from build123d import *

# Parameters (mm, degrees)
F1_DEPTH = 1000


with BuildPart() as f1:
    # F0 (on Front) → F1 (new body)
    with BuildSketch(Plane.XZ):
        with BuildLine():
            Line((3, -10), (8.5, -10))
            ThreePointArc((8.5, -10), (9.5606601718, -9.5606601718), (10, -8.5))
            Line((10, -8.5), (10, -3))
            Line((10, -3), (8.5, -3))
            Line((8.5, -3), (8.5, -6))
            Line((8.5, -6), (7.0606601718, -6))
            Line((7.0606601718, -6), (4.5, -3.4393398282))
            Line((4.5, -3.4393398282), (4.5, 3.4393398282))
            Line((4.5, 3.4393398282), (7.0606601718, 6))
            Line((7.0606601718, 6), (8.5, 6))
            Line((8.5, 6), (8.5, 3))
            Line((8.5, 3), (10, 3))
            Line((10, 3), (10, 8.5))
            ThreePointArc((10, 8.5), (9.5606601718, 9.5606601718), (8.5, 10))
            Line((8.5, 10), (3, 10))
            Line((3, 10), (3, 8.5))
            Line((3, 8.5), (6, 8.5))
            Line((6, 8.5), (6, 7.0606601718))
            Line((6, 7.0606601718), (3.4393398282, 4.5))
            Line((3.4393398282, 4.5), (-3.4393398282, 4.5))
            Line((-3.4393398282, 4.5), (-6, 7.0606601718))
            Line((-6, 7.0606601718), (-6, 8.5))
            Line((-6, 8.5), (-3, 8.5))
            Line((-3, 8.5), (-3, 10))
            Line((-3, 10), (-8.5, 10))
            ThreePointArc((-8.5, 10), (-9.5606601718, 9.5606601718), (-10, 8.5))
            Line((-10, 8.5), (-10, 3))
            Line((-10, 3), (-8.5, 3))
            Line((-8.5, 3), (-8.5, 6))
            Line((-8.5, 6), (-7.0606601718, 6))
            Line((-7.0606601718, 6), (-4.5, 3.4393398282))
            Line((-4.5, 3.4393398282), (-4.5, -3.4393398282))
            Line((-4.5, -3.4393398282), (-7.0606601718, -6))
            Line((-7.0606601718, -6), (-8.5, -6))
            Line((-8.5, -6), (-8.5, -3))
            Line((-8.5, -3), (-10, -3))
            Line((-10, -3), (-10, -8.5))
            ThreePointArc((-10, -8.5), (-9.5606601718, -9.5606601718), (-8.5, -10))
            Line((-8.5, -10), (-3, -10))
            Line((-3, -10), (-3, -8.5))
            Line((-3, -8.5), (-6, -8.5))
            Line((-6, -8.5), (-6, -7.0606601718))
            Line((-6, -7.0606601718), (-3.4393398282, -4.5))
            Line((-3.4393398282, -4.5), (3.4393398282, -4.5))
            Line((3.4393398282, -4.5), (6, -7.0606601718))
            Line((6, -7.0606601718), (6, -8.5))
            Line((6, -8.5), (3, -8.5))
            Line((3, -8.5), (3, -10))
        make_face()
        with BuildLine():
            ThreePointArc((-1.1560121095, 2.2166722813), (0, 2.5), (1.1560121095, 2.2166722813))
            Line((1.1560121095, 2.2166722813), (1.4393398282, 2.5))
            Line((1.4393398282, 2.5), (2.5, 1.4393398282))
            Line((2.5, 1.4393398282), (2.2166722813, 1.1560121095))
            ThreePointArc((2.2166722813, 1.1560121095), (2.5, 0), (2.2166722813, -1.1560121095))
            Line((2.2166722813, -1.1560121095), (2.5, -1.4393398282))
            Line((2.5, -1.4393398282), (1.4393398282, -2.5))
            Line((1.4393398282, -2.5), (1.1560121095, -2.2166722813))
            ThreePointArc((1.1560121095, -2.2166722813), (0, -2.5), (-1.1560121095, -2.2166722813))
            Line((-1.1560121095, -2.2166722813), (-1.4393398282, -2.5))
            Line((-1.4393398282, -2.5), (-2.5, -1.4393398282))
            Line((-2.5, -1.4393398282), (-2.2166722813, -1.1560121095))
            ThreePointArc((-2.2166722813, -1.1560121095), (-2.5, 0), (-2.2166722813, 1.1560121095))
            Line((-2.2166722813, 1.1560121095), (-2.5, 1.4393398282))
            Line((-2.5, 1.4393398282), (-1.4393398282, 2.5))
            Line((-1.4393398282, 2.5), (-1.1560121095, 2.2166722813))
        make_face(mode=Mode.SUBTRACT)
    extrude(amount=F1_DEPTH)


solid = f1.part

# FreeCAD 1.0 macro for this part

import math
import FreeCAD as App
import Part
import Sketcher

V = App.Vector
Q = App.Units.Quantity

doc = App.newDocument("Part")
body = doc.addObject("PartDesign::Body", "Body")

# Sketch on XZ plane
sketch1 = body.newObject("Sketcher::SketchObject", "Sketch")
sketch1.AttachmentSupport = (doc.getObject("XZ_Plane"), [""])
sketch1.MapMode = "FlatFace"
sketch1.addGeometry([
    Part.LineSegment(V(3, -10, 0), V(8.5, -10, 0)),  # 0
    Part.ArcOfCircle(Part.Circle(V(8.5, -8.5, 0), V(0, 0, 1), 1.5), math.radians(-90), math.radians(0)),  # 1
    Part.LineSegment(V(10, -8.5, 0), V(10, -3, 0)),  # 2
    Part.LineSegment(V(10, -3, 0), V(8.5, -3, 0)),  # 3
    Part.LineSegment(V(8.5, -3, 0), V(8.5, -6, 0)),  # 4
    Part.LineSegment(V(8.5, -6, 0), V(7.06, -6, 0)),  # 5
    Part.LineSegment(V(7.06, -6, 0), V(4.5, -3.44, 0)),  # 6
    Part.LineSegment(V(4.5, -3.44, 0), V(4.5, 3.44, 0)),  # 7
    Part.LineSegment(V(4.5, 3.44, 0), V(7.06, 6, 0)),  # 8
    Part.LineSegment(V(7.06, 6, 0), V(8.5, 6, 0)),  # 9
    Part.LineSegment(V(8.5, 6, 0), V(8.5, 3, 0)),  # 10
    Part.LineSegment(V(8.5, 3, 0), V(10, 3, 0)),  # 11
    Part.LineSegment(V(10, 3, 0), V(10, 8.5, 0)),  # 12
    Part.ArcOfCircle(Part.Circle(V(8.5, 8.5, 0), V(0, 0, 1), 1.5), math.radians(0), math.radians(90)),  # 13
    Part.LineSegment(V(8.5, 10, 0), V(3, 10, 0)),  # 14
    Part.LineSegment(V(3, 10, 0), V(3, 8.5, 0)),  # 15
    Part.LineSegment(V(3, 8.5, 0), V(6, 8.5, 0)),  # 16
    Part.LineSegment(V(6, 8.5, 0), V(6, 7.06, 0)),  # 17
    Part.LineSegment(V(6, 7.06, 0), V(3.44, 4.5, 0)),  # 18
    Part.LineSegment(V(3.44, 4.5, 0), V(-3.44, 4.5, 0)),  # 19
    Part.LineSegment(V(-3.44, 4.5, 0), V(-6, 7.06, 0)),  # 20
    Part.LineSegment(V(-6, 7.06, 0), V(-6, 8.5, 0)),  # 21
    Part.LineSegment(V(-6, 8.5, 0), V(-3, 8.5, 0)),  # 22
    Part.LineSegment(V(-3, 8.5, 0), V(-3, 10, 0)),  # 23
    Part.LineSegment(V(-3, 10, 0), V(-8.5, 10, 0)),  # 24
    Part.ArcOfCircle(Part.Circle(V(-8.5, 8.5, 0), V(0, 0, 1), 1.5), math.radians(90), math.radians(180)),  # 25
    Part.LineSegment(V(-10, 8.5, 0), V(-10, 3, 0)),  # 26
    Part.LineSegment(V(-10, 3, 0), V(-8.5, 3, 0)),  # 27
    Part.LineSegment(V(-8.5, 3, 0), V(-8.5, 6, 0)),  # 28
    Part.LineSegment(V(-8.5, 6, 0), V(-7.06, 6, 0)),  # 29
    Part.LineSegment(V(-7.06, 6, 0), V(-4.5, 3.44, 0)),  # 30
    Part.LineSegment(V(-4.5, 3.44, 0), V(-4.5, -3.44, 0)),  # 31
    Part.LineSegment(V(-4.5, -3.44, 0), V(-7.06, -6, 0)),  # 32
    Part.LineSegment(V(-7.06, -6, 0), V(-8.5, -6, 0)),  # 33
    Part.LineSegment(V(-8.5, -6, 0), V(-8.5, -3, 0)),  # 34
    Part.LineSegment(V(-8.5, -3, 0), V(-10, -3, 0)),  # 35
    Part.LineSegment(V(-10, -3, 0), V(-10, -8.5, 0)),  # 36
    Part.ArcOfCircle(Part.Circle(V(-8.5, -8.5, 0), V(0, 0, 1), 1.5), math.radians(180), math.radians(270)),  # 37
    Part.LineSegment(V(-8.5, -10, 0), V(-3, -10, 0)),  # 38
    Part.LineSegment(V(-3, -10, 0), V(-3, -8.5, 0)),  # 39
    Part.LineSegment(V(-3, -8.5, 0), V(-6, -8.5, 0)),  # 40
    Part.LineSegment(V(-6, -8.5, 0), V(-6, -7.06, 0)),  # 41
    Part.LineSegment(V(-6, -7.06, 0), V(-3.44, -4.5, 0)),  # 42
    Part.LineSegment(V(-3.44, -4.5, 0), V(3.44, -4.5, 0)),  # 43
    Part.LineSegment(V(3.44, -4.5, 0), V(6, -7.06, 0)),  # 44
    Part.LineSegment(V(6, -7.06, 0), V(6, -8.5, 0)),  # 45
    Part.LineSegment(V(6, -8.5, 0), V(3, -8.5, 0)),  # 46
    Part.LineSegment(V(3, -8.5, 0), V(3, -10, 0)),  # 47
    Part.LineSegment(V(-1.44, 2.5, 0), V(-1.16, 2.22, 0)),  # 48
    Part.ArcOfCircle(Part.Circle(V(0, 0, 0), V(0, 0, 1), 2.5), math.radians(62), math.radians(118)),  # 49
    Part.LineSegment(V(1.16, 2.22, 0), V(1.44, 2.5, 0)),  # 50
    Part.LineSegment(V(1.44, 2.5, 0), V(2.5, 1.44, 0)),  # 51
    Part.LineSegment(V(2.5, 1.44, 0), V(2.22, 1.16, 0)),  # 52
    Part.ArcOfCircle(Part.Circle(V(0, 0, 0), V(0, 0, 1), 2.5), math.radians(-28), math.radians(28)),  # 53
    Part.LineSegment(V(2.22, -1.16, 0), V(2.5, -1.44, 0)),  # 54
    Part.LineSegment(V(2.5, -1.44, 0), V(1.44, -2.5, 0)),  # 55
    Part.LineSegment(V(1.44, -2.5, 0), V(1.16, -2.22, 0)),  # 56
    Part.ArcOfCircle(Part.Circle(V(0, 0, 0), V(0, 0, 1), 2.5), math.radians(-118), math.radians(-62)),  # 57
    Part.LineSegment(V(-1.16, -2.22, 0), V(-1.44, -2.5, 0)),  # 58
    Part.LineSegment(V(-1.44, -2.5, 0), V(-2.5, -1.44, 0)),  # 59
    Part.LineSegment(V(-2.5, -1.44, 0), V(-2.22, -1.16, 0)),  # 60
    Part.ArcOfCircle(Part.Circle(V(0, 0, 0), V(0, 0, 1), 2.5), math.radians(152), math.radians(208)),  # 61
    Part.LineSegment(V(-2.22, 1.16, 0), V(-2.5, 1.44, 0)),  # 62
    Part.LineSegment(V(-2.5, 1.44, 0), V(-1.44, 2.5, 0)),  # 63
], False)
sketch1.addConstraint([
    Sketcher.Constraint("Tangent", 0, 2, 1, 1),
    Sketcher.Constraint("Tangent", 1, 2, 2, 1),
    Sketcher.Constraint("Coincident", 2, 2, 3, 1),
    Sketcher.Constraint("Coincident", 3, 2, 4, 1),
    Sketcher.Constraint("Coincident", 4, 2, 5, 1),
    Sketcher.Constraint("Coincident", 5, 2, 6, 1),
    Sketcher.Constraint("Coincident", 6, 2, 7, 1),
    Sketcher.Constraint("Coincident", 7, 2, 8, 1),
    Sketcher.Constraint("Coincident", 8, 2, 9, 1),
    Sketcher.Constraint("Coincident", 9, 2, 10, 1),
    Sketcher.Constraint("Coincident", 10, 2, 11, 1),
    Sketcher.Constraint("Coincident", 11, 2, 12, 1),
    Sketcher.Constraint("Tangent", 12, 2, 13, 1),
    Sketcher.Constraint("Tangent", 13, 2, 14, 1),
    Sketcher.Constraint("Coincident", 14, 2, 15, 1),
    Sketcher.Constraint("Coincident", 15, 2, 16, 1),
    Sketcher.Constraint("Coincident", 16, 2, 17, 1),
    Sketcher.Constraint("Coincident", 17, 2, 18, 1),
    Sketcher.Constraint("Coincident", 18, 2, 19, 1),
    Sketcher.Constraint("Coincident", 19, 2, 20, 1),
    Sketcher.Constraint("Coincident", 20, 2, 21, 1),
    Sketcher.Constraint("Coincident", 21, 2, 22, 1),
    Sketcher.Constraint("Coincident", 22, 2, 23, 1),
    Sketcher.Constraint("Coincident", 23, 2, 24, 1),
    Sketcher.Constraint("Tangent", 24, 2, 25, 1),
    Sketcher.Constraint("Tangent", 25, 2, 26, 1),
    Sketcher.Constraint("Coincident", 26, 2, 27, 1),
    Sketcher.Constraint("Coincident", 27, 2, 28, 1),
    Sketcher.Constraint("Coincident", 28, 2, 29, 1),
    Sketcher.Constraint("Coincident", 29, 2, 30, 1),
    Sketcher.Constraint("Coincident", 30, 2, 31, 1),
    Sketcher.Constraint("Coincident", 31, 2, 32, 1),
    Sketcher.Constraint("Coincident", 32, 2, 33, 1),
    Sketcher.Constraint("Coincident", 33, 2, 34, 1),
    Sketcher.Constraint("Coincident", 34, 2, 35, 1),
    Sketcher.Constraint("Coincident", 35, 2, 36, 1),
    Sketcher.Constraint("Tangent", 36, 2, 37, 1),
    Sketcher.Constraint("Tangent", 37, 2, 38, 1),
    Sketcher.Constraint("Coincident", 38, 2, 39, 1),
    Sketcher.Constraint("Coincident", 39, 2, 40, 1),
    Sketcher.Constraint("Coincident", 40, 2, 41, 1),
    Sketcher.Constraint("Coincident", 41, 2, 42, 1),
    Sketcher.Constraint("Coincident", 42, 2, 43, 1),
    Sketcher.Constraint("Coincident", 43, 2, 44, 1),
    Sketcher.Constraint("Coincident", 44, 2, 45, 1),
    Sketcher.Constraint("Coincident", 45, 2, 46, 1),
    Sketcher.Constraint("Coincident", 46, 2, 47, 1),
    Sketcher.Constraint("Coincident", 47, 2, 0, 1),
    Sketcher.Constraint("Coincident", 48, 2, 49, 2),
    Sketcher.Constraint("Coincident", 49, 1, 50, 1),
    Sketcher.Constraint("Coincident", 50, 2, 51, 1),
    Sketcher.Constraint("Coincident", 51, 2, 52, 1),
    Sketcher.Constraint("Coincident", 52, 2, 53, 2),
    Sketcher.Constraint("Coincident", 53, 1, 54, 1),
    Sketcher.Constraint("Coincident", 54, 2, 55, 1),
    Sketcher.Constraint("Coincident", 55, 2, 56, 1),
    Sketcher.Constraint("Coincident", 56, 2, 57, 2),
    Sketcher.Constraint("Coincident", 57, 1, 58, 1),
    Sketcher.Constraint("Coincident", 58, 2, 59, 1),
    Sketcher.Constraint("Coincident", 59, 2, 60, 1),
    Sketcher.Constraint("Coincident", 60, 2, 61, 2),
    Sketcher.Constraint("Coincident", 61, 1, 62, 1),
    Sketcher.Constraint("Coincident", 62, 2, 63, 1),
    Sketcher.Constraint("Coincident", 63, 2, 48, 1),
    Sketcher.Constraint("Horizontal", 0),
    Sketcher.Constraint("Vertical", 2),
    Sketcher.Constraint("Horizontal", 3),
    Sketcher.Constraint("Vertical", 4),
    Sketcher.Constraint("Horizontal", 5),
    Sketcher.Constraint("Vertical", 7),
    Sketcher.Constraint("Horizontal", 9),
    Sketcher.Constraint("Vertical", 10),
    Sketcher.Constraint("Horizontal", 11),
    Sketcher.Constraint("Vertical", 12),
    Sketcher.Constraint("Horizontal", 14),
    Sketcher.Constraint("Vertical", 15),
    Sketcher.Constraint("Horizontal", 16),
    Sketcher.Constraint("Vertical", 17),
    Sketcher.Constraint("Horizontal", 19),
    Sketcher.Constraint("Vertical", 21),
    Sketcher.Constraint("Horizontal", 22),
    Sketcher.Constraint("Vertical", 23),
    Sketcher.Constraint("Horizontal", 24),
    Sketcher.Constraint("Vertical", 26),
    Sketcher.Constraint("Horizontal", 27),
    Sketcher.Constraint("Vertical", 28),
    Sketcher.Constraint("Horizontal", 29),
    Sketcher.Constraint("Vertical", 31),
    Sketcher.Constraint("Horizontal", 33),
    Sketcher.Constraint("Vertical", 34),
    Sketcher.Constraint("Horizontal", 35),
    Sketcher.Constraint("Vertical", 36),
    Sketcher.Constraint("Horizontal", 38),
    Sketcher.Constraint("Vertical", 39),
    Sketcher.Constraint("Horizontal", 40),
    Sketcher.Constraint("Vertical", 41),
    Sketcher.Constraint("Horizontal", 43),
    Sketcher.Constraint("Vertical", 45),
    Sketcher.Constraint("Horizontal", 46),
    Sketcher.Constraint("Vertical", 47),
    Sketcher.Constraint("Coincident", 49, 3, -1, 1),
    Sketcher.Constraint("Coincident", 53, 3, -1, 1),
    Sketcher.Constraint("Coincident", 57, 3, -1, 1),
    Sketcher.Constraint("Coincident", 61, 3, -1, 1),
    Sketcher.Constraint("Equal", 1, 13),
    Sketcher.Constraint("Equal", 13, 25),
    Sketcher.Constraint("Equal", 25, 37),
    Sketcher.Constraint("Equal", 49, 53),
    Sketcher.Constraint("Equal", 53, 57),
    Sketcher.Constraint("Equal", 57, 61),
    Sketcher.Constraint("Symmetric", 1, 3, 25, 3, -1, 1),
    Sketcher.Constraint("Symmetric", 13, 3, 37, 3, -1, 1),
    Sketcher.Constraint("Symmetric", 3, 2, 27, 2, -1, 1),
    Sketcher.Constraint("Symmetric", 5, 2, 29, 2, -1, 1),
    Sketcher.Constraint("Symmetric", 6, 2, 30, 2, -1, 1),
    Sketcher.Constraint("Symmetric", 8, 2, 32, 2, -1, 1),
    Sketcher.Constraint("Symmetric", 10, 2, 34, 2, -1, 1),
    Sketcher.Constraint("Symmetric", 15, 2, 39, 2, -1, 1),
    Sketcher.Constraint("Symmetric", 17, 2, 41, 2, -1, 1),
    Sketcher.Constraint("Symmetric", 18, 2, 42, 2, -1, 1),
    Sketcher.Constraint("Symmetric", 20, 2, 44, 2, -1, 1),
    Sketcher.Constraint("Symmetric", 22, 2, 46, 2, -1, 1),
    Sketcher.Constraint("Symmetric", 50, 2, 58, 2, -1, 1),
    Sketcher.Constraint("Symmetric", 51, 2, 59, 2, -1, 1),
    Sketcher.Constraint("Symmetric", 54, 2, 62, 2, -1, 1),
    Sketcher.Constraint("Symmetric", 55, 2, 63, 2, -1, 1),
    Sketcher.Constraint("Symmetric", 13, 3, 25, 3, -2),
    Sketcher.Constraint("Symmetric", 17, 2, 20, 2, -2),
    Sketcher.Constraint("Symmetric", 15, 2, 22, 2, -2),
    Sketcher.Constraint("Symmetric", 10, 2, 27, 2, -2),
    Sketcher.Constraint("Symmetric", 8, 2, 29, 2, -2),
    Sketcher.Constraint("Symmetric", 55, 2, 58, 2, -2),
    Sketcher.Constraint("Symmetric", 54, 2, 59, 2, -2),
    Sketcher.Constraint("Perpendicular", 6, 8),
    Sketcher.Constraint("Parallel", 8, 18),
    Sketcher.Constraint("Perpendicular", 18, 20),
    Sketcher.Constraint("Perpendicular", 30, 32),
    Sketcher.Constraint("Perpendicular", 42, 44),
    Sketcher.Constraint("Parallel", 44, 48),
    Sketcher.Constraint("Perpendicular", 48, 50),
    Sketcher.Constraint("Perpendicular", 50, 51),
    Sketcher.Constraint("Perpendicular", 51, 52),
    Sketcher.Constraint("Perpendicular", 52, 54),
    Sketcher.Constraint("Perpendicular", 54, 55),
    Sketcher.Constraint("Perpendicular", 55, 56),
    Sketcher.Constraint("Perpendicular", 56, 58),
    Sketcher.Constraint("Perpendicular", 59, 60),
    Sketcher.Constraint("Perpendicular", 60, 62),
    Sketcher.Constraint("Horizontal", 12, 2, 15, 2),
    Sketcher.Constraint("Vertical", 0, 2, 3, 2),
    Sketcher.Constraint("Equal", 38, 2),
    Sketcher.Constraint("Equal", 46, 4),
    Sketcher.Constraint("Equal", 43, 7),
    Sketcher.Constraint("Equal", 33, 17),
    Sketcher.Constraint("Equal", 8, 18),
    Sketcher.Constraint("Equal", 50, 52),
    Sketcher.Constraint("Radius", 1, Q("1.5 mm")),
    Sketcher.Constraint("Radius", 49, Q("2.5 mm")),
    Sketcher.Constraint("DistanceX", 16, 1, 16, 2, Q("3 mm")),
    Sketcher.Constraint("DistanceX", 0, 1, 0, 2, Q("5.5 mm")),
    Sketcher.Constraint("DistanceY", 0, 2, -1, 1, Q("10 mm")),
    Sketcher.Constraint("Distance", 51, Q("1.5 mm")),
    Sketcher.Constraint("DistanceX", -1, 1, 6, 2, Q("4.5 mm")),
    Sketcher.Constraint("DistanceY", -1, 1, 50, 2, Q("2.5 mm")),
    Sketcher.Constraint("DistanceX", 5, 2, 5, 1, Q("1.43934 mm")),
])
pad1 = body.newObject("PartDesign::Pad", "Pad")
pad1.Profile = sketch1
pad1.Length = 1000

doc.recompute()
